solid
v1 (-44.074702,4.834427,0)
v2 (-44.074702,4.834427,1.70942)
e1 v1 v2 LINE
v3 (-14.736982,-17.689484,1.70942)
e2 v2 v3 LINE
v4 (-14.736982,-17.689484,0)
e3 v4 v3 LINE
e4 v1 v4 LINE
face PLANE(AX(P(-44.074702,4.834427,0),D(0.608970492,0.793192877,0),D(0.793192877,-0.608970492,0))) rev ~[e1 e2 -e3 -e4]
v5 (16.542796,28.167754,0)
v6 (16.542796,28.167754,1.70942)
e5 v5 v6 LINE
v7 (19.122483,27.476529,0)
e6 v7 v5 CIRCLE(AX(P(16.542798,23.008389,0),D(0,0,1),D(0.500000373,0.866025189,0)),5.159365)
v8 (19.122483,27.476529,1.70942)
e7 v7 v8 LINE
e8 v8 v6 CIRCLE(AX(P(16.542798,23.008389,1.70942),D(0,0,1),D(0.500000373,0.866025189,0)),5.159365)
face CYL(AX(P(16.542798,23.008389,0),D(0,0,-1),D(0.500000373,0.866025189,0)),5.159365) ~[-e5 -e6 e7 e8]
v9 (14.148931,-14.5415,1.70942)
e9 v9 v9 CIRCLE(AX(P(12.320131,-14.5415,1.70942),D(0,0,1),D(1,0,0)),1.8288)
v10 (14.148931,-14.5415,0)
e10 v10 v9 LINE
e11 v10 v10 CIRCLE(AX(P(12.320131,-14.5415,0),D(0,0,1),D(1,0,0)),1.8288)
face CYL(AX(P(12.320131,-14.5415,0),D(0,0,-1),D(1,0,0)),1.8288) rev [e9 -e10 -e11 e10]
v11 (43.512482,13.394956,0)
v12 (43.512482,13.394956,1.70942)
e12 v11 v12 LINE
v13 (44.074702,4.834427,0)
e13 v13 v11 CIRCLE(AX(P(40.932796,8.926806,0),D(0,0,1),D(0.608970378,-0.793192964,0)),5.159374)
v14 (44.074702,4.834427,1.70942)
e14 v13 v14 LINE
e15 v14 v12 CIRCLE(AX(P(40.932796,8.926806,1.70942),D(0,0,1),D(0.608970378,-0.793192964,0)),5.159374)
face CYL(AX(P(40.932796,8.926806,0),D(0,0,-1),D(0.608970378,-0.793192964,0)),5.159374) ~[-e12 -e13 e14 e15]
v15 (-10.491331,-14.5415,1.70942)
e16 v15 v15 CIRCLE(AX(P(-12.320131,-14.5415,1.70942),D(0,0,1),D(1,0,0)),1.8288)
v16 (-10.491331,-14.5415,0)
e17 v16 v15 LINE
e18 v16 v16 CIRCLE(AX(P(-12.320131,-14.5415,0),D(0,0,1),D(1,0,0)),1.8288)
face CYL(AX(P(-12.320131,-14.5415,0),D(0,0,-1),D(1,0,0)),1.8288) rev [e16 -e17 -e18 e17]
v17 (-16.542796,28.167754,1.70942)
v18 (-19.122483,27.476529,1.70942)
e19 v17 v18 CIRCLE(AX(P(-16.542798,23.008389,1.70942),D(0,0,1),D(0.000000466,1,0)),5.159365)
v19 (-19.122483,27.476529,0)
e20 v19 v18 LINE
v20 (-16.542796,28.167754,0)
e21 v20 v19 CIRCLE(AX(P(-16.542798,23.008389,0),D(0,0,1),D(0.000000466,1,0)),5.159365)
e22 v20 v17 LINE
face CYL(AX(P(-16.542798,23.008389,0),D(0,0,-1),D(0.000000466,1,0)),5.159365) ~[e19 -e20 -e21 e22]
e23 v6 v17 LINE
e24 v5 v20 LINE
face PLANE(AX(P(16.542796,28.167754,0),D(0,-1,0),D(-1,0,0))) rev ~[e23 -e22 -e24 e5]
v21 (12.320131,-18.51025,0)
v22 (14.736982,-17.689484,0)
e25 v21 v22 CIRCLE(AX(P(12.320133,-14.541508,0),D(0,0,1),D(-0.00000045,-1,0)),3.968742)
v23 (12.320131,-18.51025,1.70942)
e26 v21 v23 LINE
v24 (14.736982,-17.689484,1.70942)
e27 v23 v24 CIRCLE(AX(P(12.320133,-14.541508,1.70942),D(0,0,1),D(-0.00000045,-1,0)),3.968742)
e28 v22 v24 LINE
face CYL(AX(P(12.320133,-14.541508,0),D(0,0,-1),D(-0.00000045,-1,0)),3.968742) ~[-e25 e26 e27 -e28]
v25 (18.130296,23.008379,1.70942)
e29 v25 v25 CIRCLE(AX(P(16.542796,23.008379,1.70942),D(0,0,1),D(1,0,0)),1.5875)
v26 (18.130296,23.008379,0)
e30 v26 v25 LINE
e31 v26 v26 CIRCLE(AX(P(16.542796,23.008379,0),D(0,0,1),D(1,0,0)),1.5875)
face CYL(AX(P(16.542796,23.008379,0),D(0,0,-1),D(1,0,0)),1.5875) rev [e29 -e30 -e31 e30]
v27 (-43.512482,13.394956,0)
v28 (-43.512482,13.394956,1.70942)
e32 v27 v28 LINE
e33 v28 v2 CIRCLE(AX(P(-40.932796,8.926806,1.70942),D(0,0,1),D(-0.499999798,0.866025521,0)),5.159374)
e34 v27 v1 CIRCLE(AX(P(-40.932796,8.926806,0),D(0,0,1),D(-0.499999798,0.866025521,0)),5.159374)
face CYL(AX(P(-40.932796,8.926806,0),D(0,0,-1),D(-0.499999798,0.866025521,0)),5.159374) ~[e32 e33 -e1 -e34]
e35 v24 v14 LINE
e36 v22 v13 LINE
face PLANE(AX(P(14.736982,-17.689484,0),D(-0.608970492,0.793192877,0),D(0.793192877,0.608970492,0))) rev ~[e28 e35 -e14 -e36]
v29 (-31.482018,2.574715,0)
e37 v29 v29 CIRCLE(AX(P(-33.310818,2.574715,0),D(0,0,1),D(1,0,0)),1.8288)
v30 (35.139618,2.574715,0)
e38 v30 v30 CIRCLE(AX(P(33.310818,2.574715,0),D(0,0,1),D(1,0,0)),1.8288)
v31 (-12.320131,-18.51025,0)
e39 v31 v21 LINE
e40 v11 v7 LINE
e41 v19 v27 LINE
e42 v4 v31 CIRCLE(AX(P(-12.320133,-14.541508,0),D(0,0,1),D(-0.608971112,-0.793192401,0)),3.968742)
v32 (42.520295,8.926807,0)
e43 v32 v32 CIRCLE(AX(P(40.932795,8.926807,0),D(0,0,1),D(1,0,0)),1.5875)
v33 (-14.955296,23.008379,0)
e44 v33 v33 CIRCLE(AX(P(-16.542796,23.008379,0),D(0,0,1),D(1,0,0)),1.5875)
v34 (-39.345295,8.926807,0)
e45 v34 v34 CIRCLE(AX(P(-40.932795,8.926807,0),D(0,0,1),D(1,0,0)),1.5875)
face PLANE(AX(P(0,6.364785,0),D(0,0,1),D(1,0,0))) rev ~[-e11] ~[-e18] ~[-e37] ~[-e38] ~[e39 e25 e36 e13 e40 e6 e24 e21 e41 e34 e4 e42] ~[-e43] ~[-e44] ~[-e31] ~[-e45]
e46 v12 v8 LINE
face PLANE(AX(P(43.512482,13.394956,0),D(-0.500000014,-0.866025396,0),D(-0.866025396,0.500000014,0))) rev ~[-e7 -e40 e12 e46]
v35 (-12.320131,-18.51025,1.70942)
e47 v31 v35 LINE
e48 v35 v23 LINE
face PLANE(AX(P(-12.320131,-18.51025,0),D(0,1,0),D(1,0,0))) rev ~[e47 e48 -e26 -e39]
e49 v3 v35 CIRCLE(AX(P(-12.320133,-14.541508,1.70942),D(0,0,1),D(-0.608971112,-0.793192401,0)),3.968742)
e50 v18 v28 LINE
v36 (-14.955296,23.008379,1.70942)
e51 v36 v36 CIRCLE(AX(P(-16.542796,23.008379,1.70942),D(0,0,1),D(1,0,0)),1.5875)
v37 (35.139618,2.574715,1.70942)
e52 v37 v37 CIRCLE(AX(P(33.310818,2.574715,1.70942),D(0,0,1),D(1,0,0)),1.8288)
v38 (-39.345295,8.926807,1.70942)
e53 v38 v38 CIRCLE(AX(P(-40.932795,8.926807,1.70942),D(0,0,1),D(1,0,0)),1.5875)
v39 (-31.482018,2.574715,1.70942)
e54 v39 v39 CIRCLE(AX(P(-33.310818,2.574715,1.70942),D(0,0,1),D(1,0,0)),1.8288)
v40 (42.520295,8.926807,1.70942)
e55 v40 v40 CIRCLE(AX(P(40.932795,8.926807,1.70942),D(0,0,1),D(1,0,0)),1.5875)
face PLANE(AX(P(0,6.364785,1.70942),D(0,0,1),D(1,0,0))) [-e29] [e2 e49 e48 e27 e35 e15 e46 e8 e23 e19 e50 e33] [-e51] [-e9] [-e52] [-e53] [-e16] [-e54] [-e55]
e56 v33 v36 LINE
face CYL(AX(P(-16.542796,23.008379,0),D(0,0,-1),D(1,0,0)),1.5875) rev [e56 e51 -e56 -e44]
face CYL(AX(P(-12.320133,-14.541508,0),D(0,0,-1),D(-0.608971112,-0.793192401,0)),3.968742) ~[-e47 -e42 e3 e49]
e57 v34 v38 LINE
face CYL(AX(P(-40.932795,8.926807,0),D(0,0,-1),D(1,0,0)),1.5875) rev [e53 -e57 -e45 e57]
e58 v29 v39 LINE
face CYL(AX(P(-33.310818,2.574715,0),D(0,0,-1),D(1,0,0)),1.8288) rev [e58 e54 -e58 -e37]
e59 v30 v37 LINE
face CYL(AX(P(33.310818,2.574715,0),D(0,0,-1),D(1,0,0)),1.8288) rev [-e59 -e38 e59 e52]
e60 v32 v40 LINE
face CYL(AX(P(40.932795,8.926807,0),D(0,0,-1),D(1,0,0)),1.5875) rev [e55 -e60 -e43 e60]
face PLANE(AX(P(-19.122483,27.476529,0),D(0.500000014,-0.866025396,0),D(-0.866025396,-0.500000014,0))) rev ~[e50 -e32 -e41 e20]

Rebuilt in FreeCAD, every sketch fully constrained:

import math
import FreeCAD as App
import Part
import Sketcher

V = App.Vector
Q = App.Units.Quantity

doc = App.newDocument("Part")
body = doc.addObject("PartDesign::Body", "Body")

# Sketch on XY plane
sketch1 = doc.addObject("Sketcher::SketchObject", "Sketch")
body.addObject(sketch1)
sketch1.AttachmentSupport = (doc.XY_Plane, [""])
sketch1.MapMode = "FlatFace"
sketch1.addGeometry(Part.LineSegment(V(16.542796, 28.167754, 0), V(-16.542796, 28.167754, 0)), False)
sketch1.addGeometry(Part.ArcOfCircle(Part.Circle(V(-16.542798, 23.008389, 0), V(0, 0, 1), 5.159365), math.radians(89.999973), math.radians(120.000025)), False)
sketch1.addGeometry(Part.LineSegment(V(-19.122483, 27.476529, 0), V(-43.512482, 13.394956, 0)), False)
sketch1.addGeometry(Part.ArcOfCircle(Part.Circle(V(-40.932796, 8.926806, 0), V(0, 0, 1), 5.159374), math.radians(119.999987), math.radians(232.484908)), False)
sketch1.addGeometry(Part.LineSegment(V(-44.074702, 4.834427, 0), V(-14.736982, -17.689484, 0)), False)
sketch1.addGeometry(Part.ArcOfCircle(Part.Circle(V(-12.320133, -14.541508, 0), V(0, 0, 1), 3.968742), math.radians(-127.515145), math.radians(-89.999974)), False)
sketch1.addGeometry(Part.LineSegment(V(-12.320131, -18.51025, 0), V(12.320131, -18.51025, 0)), False)
sketch1.addGeometry(Part.ArcOfCircle(Part.Circle(V(12.320133, -14.541508, 0), V(0, 0, 1), 3.968742), math.radians(-90.000026), math.radians(-52.484855)), False)
sketch1.addGeometry(Part.LineSegment(V(14.736982, -17.689484, 0), V(44.074702, 4.834427, 0)), False)
sketch1.addGeometry(Part.ArcOfCircle(Part.Circle(V(40.932796, 8.926806, 0), V(0, 0, 1), 5.159374), math.radians(-52.484908), math.radians(60.000013)), False)
sketch1.addGeometry(Part.LineSegment(V(43.512482, 13.394956, 0), V(19.122483, 27.476529, 0)), False)
sketch1.addGeometry(Part.ArcOfCircle(Part.Circle(V(16.542798, 23.008389, 0), V(0, 0, 1), 5.159365), math.radians(59.999975), math.radians(90.000027)), False)
sketch1.addGeometry(Part.Circle(V(-12.320131, -14.5415, 0), V(0, 0, 1), 1.8288), False)
sketch1.addGeometry(Part.Circle(V(-33.310818, 2.574715, 0), V(0, 0, 1), 1.8288), False)
sketch1.addGeometry(Part.Circle(V(12.320131, -14.5415, 0), V(0, 0, 1), 1.8288), False)
sketch1.addGeometry(Part.Circle(V(33.310818, 2.574715, 0), V(0, 0, 1), 1.8288), False)
sketch1.addGeometry(Part.Circle(V(-40.932795, 8.926807, 0), V(0, 0, 1), 1.5875), False)
sketch1.addGeometry(Part.Circle(V(-16.542796, 23.008379, 0), V(0, 0, 1), 1.5875), False)
sketch1.addGeometry(Part.Circle(V(40.932795, 8.926807, 0), V(0, 0, 1), 1.5875), False)
sketch1.addGeometry(Part.Circle(V(16.542796, 23.008379, 0), V(0, 0, 1), 1.5875), False)
sketch1.addConstraint(Sketcher.Constraint("Tangent", 0, 2, 1, 1))
sketch1.addConstraint(Sketcher.Constraint("Tangent", 1, 2, 2, 1))
sketch1.addConstraint(Sketcher.Constraint("Tangent", 2, 2, 3, 1))
sketch1.addConstraint(Sketcher.Constraint("Tangent", 3, 2, 4, 1))
sketch1.addConstraint(Sketcher.Constraint("Tangent", 4, 2, 5, 1))
sketch1.addConstraint(Sketcher.Constraint("Tangent", 5, 2, 6, 1))
sketch1.addConstraint(Sketcher.Constraint("Tangent", 6, 2, 7, 1))
sketch1.addConstraint(Sketcher.Constraint("Tangent", 7, 2, 8, 1))
sketch1.addConstraint(Sketcher.Constraint("Tangent", 8, 2, 9, 1))
sketch1.addConstraint(Sketcher.Constraint("Tangent", 9, 2, 10, 1))
sketch1.addConstraint(Sketcher.Constraint("Tangent", 10, 2, 11, 1))
sketch1.addConstraint(Sketcher.Constraint("Tangent", 11, 2, 0, 1))
sketch1.addConstraint(Sketcher.Constraint("Horizontal", 0))
sketch1.addConstraint(Sketcher.Constraint("Horizontal", 6))
sketch1.addConstraint(Sketcher.Constraint("Coincident", 12, 3, 5, 3))
sketch1.addConstraint(Sketcher.Constraint("Coincident", 14, 3, 7, 3))
sketch1.addConstraint(Sketcher.Constraint("Coincident", 16, 3, 3, 3))
sketch1.addConstraint(Sketcher.Constraint("Coincident", 17, 3, 1, 3))
sketch1.addConstraint(Sketcher.Constraint("Coincident", 18, 3, 9, 3))
sketch1.addConstraint(Sketcher.Constraint("Coincident", 19, 3, 11, 3))
sketch1.addConstraint(Sketcher.Constraint("Equal", 5, 7))
sketch1.addConstraint(Sketcher.Constraint("Equal", 3, 9))
sketch1.addConstraint(Sketcher.Constraint("Equal", 1, 11))
sketch1.addConstraint(Sketcher.Constraint("Equal", 12, 13))
sketch1.addConstraint(Sketcher.Constraint("Equal", 13, 14))
sketch1.addConstraint(Sketcher.Constraint("Equal", 14, 15))
sketch1.addConstraint(Sketcher.Constraint("Equal", 16, 17))
sketch1.addConstraint(Sketcher.Constraint("Equal", 17, 18))
sketch1.addConstraint(Sketcher.Constraint("Equal", 18, 19))
sketch1.addConstraint(Sketcher.Constraint("Symmetric", 3, 3, 9, 3, -2))
sketch1.addConstraint(Sketcher.Constraint("Symmetric", 13, 3, 15, 3, -2))
sketch1.addConstraint(Sketcher.Constraint("Horizontal", 4, 2, 7, 2))
sketch1.addConstraint(Sketcher.Constraint("Horizontal", 2, 2, 9, 2))
sketch1.addConstraint(Sketcher.Constraint("Diameter", 12, Q("0.144 in")))
sketch1.addConstraint(Sketcher.Constraint("Diameter", 16, Q("0.125 in")))
sketch1.addConstraint(Sketcher.Constraint("Angle", 2, Q("-149.999999 deg")))
sketch1.addConstraint(Sketcher.Constraint("Radius", 3, Q("0.203125 in")))
sketch1.addConstraint(Sketcher.Constraint("Radius", 5, 3.968742))
sketch1.addConstraint(Sketcher.Constraint("DistanceY", 17, 3, 0, 2, Q("0.203125 in")))
sketch1.addConstraint(Sketcher.Constraint("DistanceY", 12, 3, -1, 1, Q("0.5725 in")))
sketch1.addConstraint(Sketcher.Constraint("DistanceY", 13, 3, 0, 2, Q("1.0076 in")))
sketch1.addConstraint(Sketcher.Constraint("DistanceX", 0, 2, 0, 1, 33.085592))
sketch1.addConstraint(Sketcher.Constraint("DistanceX", 6, 1, 6, 2, 24.640262))
sketch1.addConstraint(Sketcher.Constraint("DistanceX", 3, 2, -1, 1, 44.074702))
sketch1.addConstraint(Sketcher.Constraint("DistanceX", 16, 3, 17, 3, 24.389999))
sketch1.addConstraint(Sketcher.Constraint("DistanceX", 13, 3, 1, 3, 16.76802))
pad1 = doc.addObject("PartDesign::Pad", "Pad")
body.addObject(pad1)
pad1.Profile = sketch1
pad1.Length = Q("0.0673 in")

doc.recompute()
